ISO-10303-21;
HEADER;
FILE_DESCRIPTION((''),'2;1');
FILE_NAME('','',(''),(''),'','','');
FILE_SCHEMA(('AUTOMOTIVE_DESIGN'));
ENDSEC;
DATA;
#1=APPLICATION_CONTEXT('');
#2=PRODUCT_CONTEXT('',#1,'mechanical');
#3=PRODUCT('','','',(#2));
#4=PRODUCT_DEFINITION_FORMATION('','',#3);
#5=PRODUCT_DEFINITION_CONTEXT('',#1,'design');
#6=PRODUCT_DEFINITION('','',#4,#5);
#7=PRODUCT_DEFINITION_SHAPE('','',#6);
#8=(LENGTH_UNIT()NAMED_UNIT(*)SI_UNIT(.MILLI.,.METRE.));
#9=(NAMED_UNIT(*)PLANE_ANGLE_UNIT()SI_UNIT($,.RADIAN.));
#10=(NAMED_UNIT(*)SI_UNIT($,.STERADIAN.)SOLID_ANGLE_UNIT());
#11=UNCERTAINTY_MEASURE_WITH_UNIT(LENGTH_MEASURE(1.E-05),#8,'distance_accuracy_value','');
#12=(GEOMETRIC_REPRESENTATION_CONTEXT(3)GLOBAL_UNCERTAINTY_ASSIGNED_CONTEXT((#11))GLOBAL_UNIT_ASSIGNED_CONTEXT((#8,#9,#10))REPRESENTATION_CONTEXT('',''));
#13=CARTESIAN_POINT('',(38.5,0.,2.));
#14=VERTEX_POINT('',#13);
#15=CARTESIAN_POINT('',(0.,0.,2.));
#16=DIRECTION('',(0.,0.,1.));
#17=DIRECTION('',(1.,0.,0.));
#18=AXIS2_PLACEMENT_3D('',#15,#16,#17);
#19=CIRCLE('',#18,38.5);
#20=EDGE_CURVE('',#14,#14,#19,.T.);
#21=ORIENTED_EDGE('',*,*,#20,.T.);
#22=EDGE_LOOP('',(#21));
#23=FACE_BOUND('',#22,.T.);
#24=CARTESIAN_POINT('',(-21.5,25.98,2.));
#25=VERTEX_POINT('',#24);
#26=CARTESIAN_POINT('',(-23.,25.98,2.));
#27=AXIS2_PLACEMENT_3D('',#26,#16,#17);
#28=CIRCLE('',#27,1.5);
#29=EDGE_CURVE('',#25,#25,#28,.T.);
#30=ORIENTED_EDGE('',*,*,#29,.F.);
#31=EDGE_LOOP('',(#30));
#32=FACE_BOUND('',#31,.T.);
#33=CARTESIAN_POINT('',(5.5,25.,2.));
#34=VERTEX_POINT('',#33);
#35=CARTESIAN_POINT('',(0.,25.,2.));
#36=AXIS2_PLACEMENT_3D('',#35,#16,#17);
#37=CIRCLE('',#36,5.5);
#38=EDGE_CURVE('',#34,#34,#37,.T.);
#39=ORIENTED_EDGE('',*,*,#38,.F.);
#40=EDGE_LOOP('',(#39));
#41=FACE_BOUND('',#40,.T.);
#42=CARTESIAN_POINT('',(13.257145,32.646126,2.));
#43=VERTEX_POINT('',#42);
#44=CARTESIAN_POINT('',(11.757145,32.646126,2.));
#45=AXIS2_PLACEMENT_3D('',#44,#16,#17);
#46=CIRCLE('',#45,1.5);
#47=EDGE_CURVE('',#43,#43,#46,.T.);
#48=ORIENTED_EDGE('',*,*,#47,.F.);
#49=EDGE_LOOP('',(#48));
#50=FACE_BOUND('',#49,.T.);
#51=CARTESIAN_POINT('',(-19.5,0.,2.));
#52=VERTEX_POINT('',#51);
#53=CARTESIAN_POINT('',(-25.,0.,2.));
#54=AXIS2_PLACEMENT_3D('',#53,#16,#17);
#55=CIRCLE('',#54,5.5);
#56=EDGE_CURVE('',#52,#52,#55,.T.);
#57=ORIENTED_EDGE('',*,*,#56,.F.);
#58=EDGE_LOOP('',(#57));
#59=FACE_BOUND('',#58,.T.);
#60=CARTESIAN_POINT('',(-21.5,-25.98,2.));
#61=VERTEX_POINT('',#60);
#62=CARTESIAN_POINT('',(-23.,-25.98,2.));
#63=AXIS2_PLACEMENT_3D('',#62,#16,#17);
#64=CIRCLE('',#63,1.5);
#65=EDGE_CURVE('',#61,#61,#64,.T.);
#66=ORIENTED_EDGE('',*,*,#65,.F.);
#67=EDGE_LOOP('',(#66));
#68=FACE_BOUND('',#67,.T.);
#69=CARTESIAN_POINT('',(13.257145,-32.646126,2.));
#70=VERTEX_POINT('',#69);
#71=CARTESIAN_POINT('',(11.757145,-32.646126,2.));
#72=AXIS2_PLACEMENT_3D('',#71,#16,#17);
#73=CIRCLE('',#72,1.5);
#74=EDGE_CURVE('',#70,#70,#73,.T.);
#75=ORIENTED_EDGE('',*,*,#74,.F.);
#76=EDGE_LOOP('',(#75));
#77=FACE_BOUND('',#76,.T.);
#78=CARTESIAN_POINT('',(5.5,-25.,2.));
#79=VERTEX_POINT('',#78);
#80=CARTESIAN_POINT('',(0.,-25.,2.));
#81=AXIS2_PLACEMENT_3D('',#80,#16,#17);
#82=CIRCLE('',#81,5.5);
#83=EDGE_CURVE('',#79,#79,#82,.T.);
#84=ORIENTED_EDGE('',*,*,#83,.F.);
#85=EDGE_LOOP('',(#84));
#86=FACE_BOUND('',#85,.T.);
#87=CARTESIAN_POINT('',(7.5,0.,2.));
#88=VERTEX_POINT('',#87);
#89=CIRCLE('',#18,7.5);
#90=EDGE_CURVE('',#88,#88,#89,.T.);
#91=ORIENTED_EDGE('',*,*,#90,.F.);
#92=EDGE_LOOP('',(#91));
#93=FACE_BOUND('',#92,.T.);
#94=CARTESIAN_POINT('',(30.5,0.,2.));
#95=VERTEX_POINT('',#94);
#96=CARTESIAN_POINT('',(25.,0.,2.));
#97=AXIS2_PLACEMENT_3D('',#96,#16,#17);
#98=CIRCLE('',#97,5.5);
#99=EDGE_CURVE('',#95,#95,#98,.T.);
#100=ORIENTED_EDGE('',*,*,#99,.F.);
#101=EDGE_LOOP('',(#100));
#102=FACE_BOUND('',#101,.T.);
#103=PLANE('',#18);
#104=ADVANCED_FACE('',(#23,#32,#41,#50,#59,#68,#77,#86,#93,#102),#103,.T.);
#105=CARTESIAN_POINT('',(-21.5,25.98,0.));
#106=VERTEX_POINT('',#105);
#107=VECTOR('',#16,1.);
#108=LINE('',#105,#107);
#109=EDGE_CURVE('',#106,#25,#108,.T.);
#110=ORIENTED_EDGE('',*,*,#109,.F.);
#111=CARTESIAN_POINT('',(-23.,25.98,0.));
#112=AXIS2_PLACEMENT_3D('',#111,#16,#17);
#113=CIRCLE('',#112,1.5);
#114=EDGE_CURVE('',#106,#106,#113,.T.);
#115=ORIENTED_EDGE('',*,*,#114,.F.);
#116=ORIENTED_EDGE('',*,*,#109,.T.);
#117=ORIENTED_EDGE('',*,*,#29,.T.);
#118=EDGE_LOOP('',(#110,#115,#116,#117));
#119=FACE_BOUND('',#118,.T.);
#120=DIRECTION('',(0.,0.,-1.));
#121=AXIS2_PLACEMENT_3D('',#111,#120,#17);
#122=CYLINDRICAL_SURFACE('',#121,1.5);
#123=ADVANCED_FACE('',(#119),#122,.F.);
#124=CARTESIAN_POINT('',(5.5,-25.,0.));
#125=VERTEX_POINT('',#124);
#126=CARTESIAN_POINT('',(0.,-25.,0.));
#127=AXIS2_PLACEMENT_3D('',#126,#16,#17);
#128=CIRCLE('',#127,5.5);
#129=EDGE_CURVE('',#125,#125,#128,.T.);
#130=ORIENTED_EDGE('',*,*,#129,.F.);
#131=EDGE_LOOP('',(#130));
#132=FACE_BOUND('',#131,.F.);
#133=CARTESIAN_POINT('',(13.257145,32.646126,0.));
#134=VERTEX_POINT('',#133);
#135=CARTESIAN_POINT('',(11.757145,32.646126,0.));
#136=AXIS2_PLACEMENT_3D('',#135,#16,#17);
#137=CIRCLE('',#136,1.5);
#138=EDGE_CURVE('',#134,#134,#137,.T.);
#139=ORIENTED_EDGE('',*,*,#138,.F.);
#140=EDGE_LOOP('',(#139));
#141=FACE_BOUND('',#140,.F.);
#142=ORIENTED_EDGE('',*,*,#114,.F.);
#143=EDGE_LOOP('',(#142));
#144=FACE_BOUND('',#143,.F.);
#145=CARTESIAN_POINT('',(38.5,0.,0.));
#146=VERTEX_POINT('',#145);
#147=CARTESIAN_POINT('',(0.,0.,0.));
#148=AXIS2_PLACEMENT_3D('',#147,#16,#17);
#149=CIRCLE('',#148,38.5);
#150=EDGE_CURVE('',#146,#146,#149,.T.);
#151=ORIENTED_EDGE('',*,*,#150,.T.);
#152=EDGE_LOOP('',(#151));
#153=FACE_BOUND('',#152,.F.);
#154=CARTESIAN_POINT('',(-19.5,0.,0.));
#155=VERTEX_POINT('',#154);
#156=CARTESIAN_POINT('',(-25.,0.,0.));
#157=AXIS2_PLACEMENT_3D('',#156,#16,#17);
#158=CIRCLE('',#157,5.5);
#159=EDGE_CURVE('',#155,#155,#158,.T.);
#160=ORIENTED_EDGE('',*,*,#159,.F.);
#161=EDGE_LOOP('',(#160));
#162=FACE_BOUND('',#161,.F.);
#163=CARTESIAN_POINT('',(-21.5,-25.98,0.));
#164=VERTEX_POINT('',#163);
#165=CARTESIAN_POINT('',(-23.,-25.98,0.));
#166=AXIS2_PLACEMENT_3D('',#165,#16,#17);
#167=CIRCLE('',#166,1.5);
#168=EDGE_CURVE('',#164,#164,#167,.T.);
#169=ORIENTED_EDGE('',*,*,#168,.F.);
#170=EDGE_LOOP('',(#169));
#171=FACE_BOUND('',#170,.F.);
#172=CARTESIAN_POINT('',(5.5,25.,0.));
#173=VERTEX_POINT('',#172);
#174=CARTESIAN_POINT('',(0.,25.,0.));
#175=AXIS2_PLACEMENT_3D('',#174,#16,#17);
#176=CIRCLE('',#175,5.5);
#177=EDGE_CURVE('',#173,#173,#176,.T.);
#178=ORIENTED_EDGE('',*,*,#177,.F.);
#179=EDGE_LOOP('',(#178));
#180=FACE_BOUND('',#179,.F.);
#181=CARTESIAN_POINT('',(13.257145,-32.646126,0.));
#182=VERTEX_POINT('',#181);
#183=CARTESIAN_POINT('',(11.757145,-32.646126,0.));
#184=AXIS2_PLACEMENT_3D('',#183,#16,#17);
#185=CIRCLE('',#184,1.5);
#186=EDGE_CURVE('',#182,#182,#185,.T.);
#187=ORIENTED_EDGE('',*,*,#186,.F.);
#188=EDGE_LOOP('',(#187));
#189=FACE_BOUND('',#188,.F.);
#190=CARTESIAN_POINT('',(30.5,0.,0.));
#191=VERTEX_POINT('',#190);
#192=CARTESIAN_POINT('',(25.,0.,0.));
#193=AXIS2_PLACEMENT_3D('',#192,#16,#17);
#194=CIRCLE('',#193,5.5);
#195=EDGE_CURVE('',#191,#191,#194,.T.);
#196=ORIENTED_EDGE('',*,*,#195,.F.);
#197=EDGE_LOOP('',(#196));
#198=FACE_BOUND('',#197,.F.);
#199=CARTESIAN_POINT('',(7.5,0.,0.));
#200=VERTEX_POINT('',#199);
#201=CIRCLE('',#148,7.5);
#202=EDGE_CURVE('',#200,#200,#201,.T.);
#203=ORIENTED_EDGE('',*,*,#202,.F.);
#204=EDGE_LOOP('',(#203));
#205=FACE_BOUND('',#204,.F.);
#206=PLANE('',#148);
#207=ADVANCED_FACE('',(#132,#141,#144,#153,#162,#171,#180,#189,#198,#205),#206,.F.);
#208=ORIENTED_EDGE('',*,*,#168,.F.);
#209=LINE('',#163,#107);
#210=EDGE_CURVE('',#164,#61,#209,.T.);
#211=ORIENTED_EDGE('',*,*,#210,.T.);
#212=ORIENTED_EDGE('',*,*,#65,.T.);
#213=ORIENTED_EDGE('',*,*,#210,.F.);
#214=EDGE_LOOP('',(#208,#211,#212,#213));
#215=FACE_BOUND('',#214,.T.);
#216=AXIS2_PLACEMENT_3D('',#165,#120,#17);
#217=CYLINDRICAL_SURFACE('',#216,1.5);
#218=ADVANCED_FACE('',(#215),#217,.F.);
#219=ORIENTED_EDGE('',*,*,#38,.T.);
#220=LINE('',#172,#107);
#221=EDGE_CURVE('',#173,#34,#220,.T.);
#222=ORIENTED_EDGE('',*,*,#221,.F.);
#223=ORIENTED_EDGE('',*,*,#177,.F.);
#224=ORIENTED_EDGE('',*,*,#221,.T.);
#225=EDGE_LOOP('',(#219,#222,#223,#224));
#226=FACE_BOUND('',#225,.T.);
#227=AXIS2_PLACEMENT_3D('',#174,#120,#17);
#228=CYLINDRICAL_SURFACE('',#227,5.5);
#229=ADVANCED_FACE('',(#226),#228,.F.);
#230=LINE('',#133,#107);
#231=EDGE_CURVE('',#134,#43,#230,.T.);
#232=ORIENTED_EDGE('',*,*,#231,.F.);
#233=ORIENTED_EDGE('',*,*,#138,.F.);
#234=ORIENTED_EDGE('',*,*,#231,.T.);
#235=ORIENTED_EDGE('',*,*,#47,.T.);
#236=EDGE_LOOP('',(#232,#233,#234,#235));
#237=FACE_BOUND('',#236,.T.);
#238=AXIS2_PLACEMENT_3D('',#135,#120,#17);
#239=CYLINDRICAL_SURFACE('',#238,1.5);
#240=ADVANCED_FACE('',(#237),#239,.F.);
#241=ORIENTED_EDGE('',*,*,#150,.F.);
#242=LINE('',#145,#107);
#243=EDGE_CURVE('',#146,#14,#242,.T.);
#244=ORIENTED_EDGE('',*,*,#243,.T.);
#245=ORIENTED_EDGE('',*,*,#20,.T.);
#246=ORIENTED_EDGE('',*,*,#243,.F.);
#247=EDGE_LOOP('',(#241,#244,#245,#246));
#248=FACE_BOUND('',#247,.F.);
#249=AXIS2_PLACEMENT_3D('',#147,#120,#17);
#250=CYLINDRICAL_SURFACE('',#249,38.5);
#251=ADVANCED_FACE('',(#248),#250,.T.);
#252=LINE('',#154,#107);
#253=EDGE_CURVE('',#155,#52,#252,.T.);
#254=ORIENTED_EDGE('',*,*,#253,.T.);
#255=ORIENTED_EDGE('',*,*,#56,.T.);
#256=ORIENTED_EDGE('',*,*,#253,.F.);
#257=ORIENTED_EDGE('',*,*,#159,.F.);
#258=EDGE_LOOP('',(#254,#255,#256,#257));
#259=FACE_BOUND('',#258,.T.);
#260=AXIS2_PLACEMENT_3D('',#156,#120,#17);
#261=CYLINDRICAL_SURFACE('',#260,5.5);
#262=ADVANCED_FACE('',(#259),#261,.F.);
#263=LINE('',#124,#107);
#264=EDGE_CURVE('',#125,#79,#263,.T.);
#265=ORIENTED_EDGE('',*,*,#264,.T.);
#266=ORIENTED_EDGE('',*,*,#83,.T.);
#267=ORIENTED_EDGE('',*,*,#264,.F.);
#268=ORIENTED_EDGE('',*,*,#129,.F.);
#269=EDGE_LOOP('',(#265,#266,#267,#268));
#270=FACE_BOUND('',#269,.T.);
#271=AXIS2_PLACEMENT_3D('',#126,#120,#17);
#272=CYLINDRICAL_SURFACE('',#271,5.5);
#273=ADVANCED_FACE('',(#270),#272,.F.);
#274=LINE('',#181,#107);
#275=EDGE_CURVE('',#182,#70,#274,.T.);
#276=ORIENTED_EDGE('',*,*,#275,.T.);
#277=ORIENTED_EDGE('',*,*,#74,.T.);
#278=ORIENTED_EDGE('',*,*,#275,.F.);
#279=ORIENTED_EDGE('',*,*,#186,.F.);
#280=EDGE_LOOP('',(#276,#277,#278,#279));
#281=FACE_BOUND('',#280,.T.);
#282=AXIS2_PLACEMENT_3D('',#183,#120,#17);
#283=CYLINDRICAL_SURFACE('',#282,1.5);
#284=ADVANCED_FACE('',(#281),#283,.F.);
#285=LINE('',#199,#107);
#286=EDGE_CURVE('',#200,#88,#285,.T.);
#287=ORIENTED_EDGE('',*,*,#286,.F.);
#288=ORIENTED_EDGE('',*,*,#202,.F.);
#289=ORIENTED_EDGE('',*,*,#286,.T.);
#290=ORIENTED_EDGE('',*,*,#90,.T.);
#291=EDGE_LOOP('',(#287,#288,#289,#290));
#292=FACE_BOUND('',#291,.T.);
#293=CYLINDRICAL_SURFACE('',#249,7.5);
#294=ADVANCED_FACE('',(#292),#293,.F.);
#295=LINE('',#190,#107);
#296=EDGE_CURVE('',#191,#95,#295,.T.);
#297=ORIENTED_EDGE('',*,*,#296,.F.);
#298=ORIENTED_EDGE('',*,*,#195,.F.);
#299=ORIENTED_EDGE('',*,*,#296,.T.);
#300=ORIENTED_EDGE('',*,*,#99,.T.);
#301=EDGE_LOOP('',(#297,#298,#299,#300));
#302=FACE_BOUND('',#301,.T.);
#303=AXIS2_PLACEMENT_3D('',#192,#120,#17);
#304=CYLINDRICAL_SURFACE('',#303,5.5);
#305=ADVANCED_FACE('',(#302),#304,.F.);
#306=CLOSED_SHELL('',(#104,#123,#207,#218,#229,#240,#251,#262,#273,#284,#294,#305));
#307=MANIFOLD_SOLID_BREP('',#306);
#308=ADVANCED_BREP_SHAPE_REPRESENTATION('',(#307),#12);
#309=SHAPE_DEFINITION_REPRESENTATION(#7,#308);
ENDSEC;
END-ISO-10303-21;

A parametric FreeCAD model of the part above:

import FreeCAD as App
import Part
import Sketcher

V = App.Vector

doc = App.newDocument("Part")
params = doc.addObject("Spreadsheet::Sheet", "Params")
for row, (alias, value) in enumerate([
    ("sketch1_diameter", "77 mm"),
    ("sketch1_diameter2", "3 mm"),
    ("sketch1_diameter3", "11 mm"),
    ("sketch1_diameter4", "15 mm"),
    ("pad1_length", "2 mm"),
], start=1):
    params.set(f"A{row}", alias)
    params.set(f"B{row}", "=" + value)
    params.setAlias(f"B{row}", alias)

body = doc.addObject("PartDesign::Body", "Body")

# Sketch on XY plane
sketch1 = doc.addObject("Sketcher::SketchObject", "Sketch")
body.addObject(sketch1)
sketch1.AttachmentSupport = (doc.XY_Plane, [""])
sketch1.MapMode = "FlatFace"
sketch1.addGeometry(Part.Circle(V(0, 0, 0), V(0, 0, 1), 38.5), False)
sketch1.addGeometry(Part.Circle(V(-23, -26, 0), V(0, 0, 1), 1.5), False)
sketch1.addGeometry(Part.Circle(V(11.8, -32.6, 0), V(0, 0, 1), 1.5), False)
sketch1.addGeometry(Part.Circle(V(0, -25, 0), V(0, 0, 1), 5.5), False)
sketch1.addGeometry(Part.Circle(V(-25, 0, 0), V(0, 0, 1), 5.5), False)
sketch1.addGeometry(Part.Circle(V(-23, 26, 0), V(0, 0, 1), 1.5), False)
sketch1.addGeometry(Part.Circle(V(0, 0, 0), V(0, 0, 1), 7.5), False)
sketch1.addGeometry(Part.Circle(V(25, 0, 0), V(0, 0, 1), 5.5), False)
sketch1.addGeometry(Part.Circle(V(0, 25, 0), V(0, 0, 1), 5.5), False)
sketch1.addGeometry(Part.Circle(V(11.8, 32.6, 0), V(0, 0, 1), 1.5), False)
sketch1.addConstraint(Sketcher.Constraint("Coincident", 0, 3, -1, 1))
sketch1.addConstraint(Sketcher.Constraint("Coincident", 6, 3, -1, 1))
sketch1.addConstraint(Sketcher.Constraint("Equal", 1, 2))
sketch1.addConstraint(Sketcher.Constraint("Equal", 3, 4))
sketch1.addConstraint(Sketcher.Constraint("Equal", 2, 5))
sketch1.addConstraint(Sketcher.Constraint("Equal", 4, 7))
sketch1.addConstraint(Sketcher.Constraint("Equal", 7, 8))
sketch1.addConstraint(Sketcher.Constraint("Equal", 5, 9))
sketch1.addConstraint(Sketcher.Constraint("Symmetric", 4, 3, 7, 3, -1, 1))
sketch1.addConstraint(Sketcher.Constraint("Symmetric", 3, 3, 8, 3, -1, 1))
sketch1.addConstraint(Sketcher.Constraint("Symmetric", 1, 3, 5, 3, -1))
sketch1.addConstraint(Sketcher.Constraint("Symmetric", 2, 3, 9, 3, -1))
sketch1.addConstraint(Sketcher.Constraint("PointOnObject", 3, 3, -2))
sketch1.addConstraint(Sketcher.Constraint("PointOnObject", 4, 3, -1))
sketch1.addConstraint(Sketcher.Constraint("Diameter", 0, 77.0))
sketch1.addConstraint(Sketcher.Constraint("Diameter", 1, 3.0))
sketch1.addConstraint(Sketcher.Constraint("Diameter", 3, 11.0))
sketch1.addConstraint(Sketcher.Constraint("Diameter", 6, 15.0))
sketch1.addConstraint(Sketcher.Constraint("DistanceX", 1, 3, -1, 1, 23.0))
sketch1.addConstraint(Sketcher.Constraint("DistanceY", 3, 3, -1, 1, 25.0))
sketch1.addConstraint(Sketcher.Constraint("DistanceX", 4, 3, -1, 1, 25.0))
sketch1.addConstraint(Sketcher.Constraint("DistanceY", 1, 3, -1, 1, 25.98))
sketch1.addConstraint(Sketcher.Constraint("DistanceX", -1, 1, 2, 3, 11.757145))
sketch1.addConstraint(Sketcher.Constraint("DistanceY", 2, 3, -1, 1, 32.646126))
sketch1.setExpression("Constraints[14]", "Params.sketch1_diameter")
sketch1.setExpression("Constraints[15]", "Params.sketch1_diameter2")
sketch1.setExpression("Constraints[16]", "Params.sketch1_diameter3")
sketch1.setExpression("Constraints[17]", "Params.sketch1_diameter4")
pad1 = doc.addObject("PartDesign::Pad", "Pad")
body.addObject(pad1)
pad1.Profile = sketch1
pad1.setExpression("Length", "Params.pad1_length")

doc.recompute()
